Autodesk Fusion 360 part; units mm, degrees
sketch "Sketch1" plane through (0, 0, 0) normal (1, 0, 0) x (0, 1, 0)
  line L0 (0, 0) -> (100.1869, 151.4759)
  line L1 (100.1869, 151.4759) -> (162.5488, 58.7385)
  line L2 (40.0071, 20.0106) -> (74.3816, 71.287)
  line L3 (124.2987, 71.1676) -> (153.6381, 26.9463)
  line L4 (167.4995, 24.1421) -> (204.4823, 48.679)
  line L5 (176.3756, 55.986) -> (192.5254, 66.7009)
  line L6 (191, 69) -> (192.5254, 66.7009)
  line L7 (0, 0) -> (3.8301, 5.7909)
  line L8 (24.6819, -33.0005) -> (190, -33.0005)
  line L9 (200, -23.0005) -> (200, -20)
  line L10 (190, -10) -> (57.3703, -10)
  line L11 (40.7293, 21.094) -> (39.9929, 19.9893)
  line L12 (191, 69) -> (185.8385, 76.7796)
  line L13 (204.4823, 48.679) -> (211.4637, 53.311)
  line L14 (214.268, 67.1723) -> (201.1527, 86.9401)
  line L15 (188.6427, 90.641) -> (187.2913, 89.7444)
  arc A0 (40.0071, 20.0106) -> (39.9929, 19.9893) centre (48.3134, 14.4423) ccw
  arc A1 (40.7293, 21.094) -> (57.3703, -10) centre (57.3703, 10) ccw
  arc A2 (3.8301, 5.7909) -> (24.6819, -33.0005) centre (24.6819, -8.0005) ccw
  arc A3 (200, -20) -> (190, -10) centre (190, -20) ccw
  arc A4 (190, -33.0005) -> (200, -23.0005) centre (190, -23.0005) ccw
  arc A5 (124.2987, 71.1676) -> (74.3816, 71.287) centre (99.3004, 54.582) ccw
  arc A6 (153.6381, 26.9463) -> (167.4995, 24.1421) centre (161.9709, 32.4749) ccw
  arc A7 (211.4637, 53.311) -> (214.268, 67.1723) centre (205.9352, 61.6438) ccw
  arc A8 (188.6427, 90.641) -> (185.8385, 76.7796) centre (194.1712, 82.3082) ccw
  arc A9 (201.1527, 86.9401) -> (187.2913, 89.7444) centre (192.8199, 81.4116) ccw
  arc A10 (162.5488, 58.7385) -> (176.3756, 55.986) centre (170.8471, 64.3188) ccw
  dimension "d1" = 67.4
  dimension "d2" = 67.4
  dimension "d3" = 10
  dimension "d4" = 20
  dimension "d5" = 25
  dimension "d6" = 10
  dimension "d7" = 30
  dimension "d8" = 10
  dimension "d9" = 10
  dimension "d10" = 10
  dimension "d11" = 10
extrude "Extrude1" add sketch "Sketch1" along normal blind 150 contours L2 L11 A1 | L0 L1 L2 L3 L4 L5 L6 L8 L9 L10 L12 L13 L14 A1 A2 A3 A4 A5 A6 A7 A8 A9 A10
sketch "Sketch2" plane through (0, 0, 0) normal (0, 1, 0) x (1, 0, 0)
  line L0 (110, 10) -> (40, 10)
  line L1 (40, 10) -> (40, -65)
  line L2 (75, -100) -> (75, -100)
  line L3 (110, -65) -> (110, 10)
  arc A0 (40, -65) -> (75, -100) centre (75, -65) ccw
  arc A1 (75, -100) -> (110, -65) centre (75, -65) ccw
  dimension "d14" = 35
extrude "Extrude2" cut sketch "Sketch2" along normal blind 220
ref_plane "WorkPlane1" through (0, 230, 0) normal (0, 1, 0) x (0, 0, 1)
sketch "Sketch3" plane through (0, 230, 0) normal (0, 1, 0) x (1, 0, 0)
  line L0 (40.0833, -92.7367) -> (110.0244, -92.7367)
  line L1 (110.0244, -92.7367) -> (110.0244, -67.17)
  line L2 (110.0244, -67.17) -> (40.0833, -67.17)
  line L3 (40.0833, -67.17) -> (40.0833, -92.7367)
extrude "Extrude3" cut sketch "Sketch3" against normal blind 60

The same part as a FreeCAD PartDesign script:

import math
import FreeCAD as App
import Part
import Sketcher
from FreeCAD import Vector
Q = App.Units.Quantity


def add_polygon(sketch, points):
    """Adds a closed chain of lines whose ends are joined by coincident constraints."""
    first, n = sketch.GeometryCount, len(points)
    for a, b in zip(points, points[1:] + points[:1]):
        sketch.addGeometry(Part.LineSegment(App.Vector(*a, 0), App.Vector(*b, 0)), False)
    for i in range(n):
        sketch.addConstraint(Sketcher.Constraint("Coincident", first + i, 2, first + (i + 1) % n, 1))

doc = App.newDocument("Part")
body = doc.addObject("PartDesign::Body", "Body")

sketch1 = body.newObject("Sketcher::SketchObject", "Sketch")
sketch1.AttachmentSupport = (doc.getObject("YZ_Plane"), [""])
sketch1.MapMode = "FlatFace"
sketch1.addGeometry(Part.LineSegment(Vector(100.1869, 151.4759, 0), Vector(3.830121, 5.790886, 0)), False)
sketch1.addGeometry(Part.ArcOfCircle(Part.Circle(Vector(24.6819, -8.0005, 0), Vector(0, 0, 1), 25.000006), math.radians(146.519313), math.radians(270)), False)
sketch1.addGeometry(Part.LineSegment(Vector(24.6819, -33.0005, 0), Vector(190, -33.0005, 0)), False)
sketch1.addGeometry(Part.ArcOfCircle(Part.Circle(Vector(190, -23.0005, 0), Vector(0, 0, 1), 10), math.radians(-90), math.radians(0)), False)
sketch1.addGeometry(Part.LineSegment(Vector(200, -23.0005, 0), Vector(200, -20, 0)), False)
sketch1.addGeometry(Part.ArcOfCircle(Part.Circle(Vector(190, -20, 0), Vector(0, 0, 1), 10), math.radians(0), math.radians(90)), False)
sketch1.addGeometry(Part.LineSegment(Vector(190, -10, 0), Vector(57.3703, -10, 0)), False)
sketch1.addGeometry(Part.ArcOfCircle(Part.Circle(Vector(57.3703, 10, 0), Vector(0, 0, 1), 19.999993), math.radians(147.228748), math.radians(270)), False)
sketch1.addGeometry(Part.LineSegment(Vector(40.55354, 20.825724, 0), Vector(74.3816, 71.287, 0)), False)
sketch1.addGeometry(Part.ArcOfCircle(Part.Circle(Vector(99.3004, 54.582, 0), Vector(0, 0, 1), 29.999952), math.radians(33.563045), math.radians(146.162994)), False)
sketch1.addGeometry(Part.LineSegment(Vector(124.2987, 71.1676, 0), Vector(153.6381, 26.9463, 0)), False)
sketch1.addGeometry(Part.ArcOfCircle(Part.Circle(Vector(161.9709, 32.4749, 0), Vector(0, 0, 1), 10.000049), math.radians(-146.436742), math.radians(-56.436742)), False)
sketch1.addGeometry(Part.LineSegment(Vector(167.4995, 24.1421, 0), Vector(204.4823, 48.679, 0)), False)
sketch1.addGeometry(Part.LineSegment(Vector(204.4823, 48.679, 0), Vector(211.4637, 53.311, 0)), False)
sketch1.addGeometry(Part.ArcOfCircle(Part.Circle(Vector(205.9352, 61.6438, 0), Vector(0, 0, 1), 9.999993), math.radians(-56.437219), math.radians(33.562781)), False)
sketch1.addGeometry(Part.LineSegment(Vector(214.268, 67.1723, 0), Vector(201.1527, 86.9401, 0)), False)
sketch1.addGeometry(Part.ArcOfCircle(Part.Circle(Vector(192.8199, 81.4116, 0), Vector(0, 0, 1), 9.999993), math.radians(33.562781), math.radians(118.91209)), False)
sketch1.addGeometry(Part.ArcOfCircle(Part.Circle(Vector(194.1712, 82.3082, 0), Vector(0, 0, 1), 9.999993), math.radians(128.213929), math.radians(213.563575)), False)
sketch1.addGeometry(Part.LineSegment(Vector(185.8385, 76.7796, 0), Vector(191, 69, 0)), False)
sketch1.addGeometry(Part.LineSegment(Vector(191, 69, 0), Vector(192.5254, 66.7009, 0)), False)
sketch1.addGeometry(Part.LineSegment(Vector(192.5254, 66.7009, 0), Vector(176.3756, 55.986, 0)), False)
sketch1.addGeometry(Part.ArcOfCircle(Part.Circle(Vector(170.8471, 64.3188, 0), Vector(0, 0, 1), 10.000077), math.radians(-146.080627), math.radians(-56.437219)), False)
sketch1.addGeometry(Part.LineSegment(Vector(162.5488, 58.7385, 0), Vector(100.1869, 151.4759, 0)), False)
sketch1.addConstraint(Sketcher.Constraint("Tangent", 0, 2, 1, 1))
sketch1.addConstraint(Sketcher.Constraint("Tangent", 1, 2, 2, 1))
sketch1.addConstraint(Sketcher.Constraint("Tangent", 2, 2, 3, 1))
sketch1.addConstraint(Sketcher.Constraint("Tangent", 3, 2, 4, 1))
sketch1.addConstraint(Sketcher.Constraint("Tangent", 4, 2, 5, 1))
sketch1.addConstraint(Sketcher.Constraint("Tangent", 5, 2, 6, 1))
sketch1.addConstraint(Sketcher.Constraint("Tangent", 6, 2, 7, 2))
sketch1.addConstraint(Sketcher.Constraint("Coincident", 7, 1, 8, 1))
sketch1.addConstraint(Sketcher.Constraint("Tangent", 8, 2, 9, 2))
sketch1.addConstraint(Sketcher.Constraint("Tangent", 9, 1, 10, 1))
sketch1.addConstraint(Sketcher.Constraint("Tangent", 10, 2, 11, 1))
sketch1.addConstraint(Sketcher.Constraint("Tangent", 11, 2, 12, 1))
sketch1.addConstraint(Sketcher.Constraint("Coincident", 12, 2, 13, 1))
sketch1.addConstraint(Sketcher.Constraint("Tangent", 13, 2, 14, 1))
sketch1.addConstraint(Sketcher.Constraint("Tangent", 14, 2, 15, 1))
sketch1.addConstraint(Sketcher.Constraint("Tangent", 15, 2, 16, 1))
sketch1.addConstraint(Sketcher.Constraint("Coincident", 16, 2, 17, 1))
sketch1.addConstraint(Sketcher.Constraint("Tangent", 17, 2, 18, 1))
sketch1.addConstraint(Sketcher.Constraint("Coincident", 18, 2, 19, 1))
sketch1.addConstraint(Sketcher.Constraint("Coincident", 19, 2, 20, 1))
sketch1.addConstraint(Sketcher.Constraint("Tangent", 20, 2, 21, 2))
sketch1.addConstraint(Sketcher.Constraint("Tangent", 21, 1, 22, 1))
sketch1.addConstraint(Sketcher.Constraint("Coincident", 22, 2, 0, 1))
sketch1.addConstraint(Sketcher.Constraint("Horizontal", 2))
sketch1.addConstraint(Sketcher.Constraint("Vertical", 4))
sketch1.addConstraint(Sketcher.Constraint("Horizontal", 6))
sketch1.addConstraint(Sketcher.Constraint("Equal", 3, 5))
sketch1.addConstraint(Sketcher.Constraint("Equal", 5, 11))
sketch1.addConstraint(Sketcher.Constraint("Equal", 11, 14))
sketch1.addConstraint(Sketcher.Constraint("Equal", 14, 16))
sketch1.addConstraint(Sketcher.Constraint("Equal", 16, 17))
sketch1.addConstraint(Sketcher.Constraint("Equal", 17, 21))
sketch1.addConstraint(Sketcher.Constraint("Perpendicular", 10, 12))
sketch1.addConstraint(Sketcher.Constraint("Parallel", 12, 13))
sketch1.addConstraint(Sketcher.Constraint("Perpendicular", 13, 15))
sketch1.addConstraint(Sketcher.Constraint("Parallel", 15, 18))
sketch1.addConstraint(Sketcher.Constraint("Parallel", 18, 19))
sketch1.addConstraint(Sketcher.Constraint("Perpendicular", 19, 20))
sketch1.addConstraint(Sketcher.Constraint("Radius", 1, 25.0))
sketch1.addConstraint(Sketcher.Constraint("Radius", 3, 10.0))
sketch1.addConstraint(Sketcher.Constraint("Radius", 7, 20.0))
sketch1.addConstraint(Sketcher.Constraint("Radius", 9, 30.0))
sketch1.addConstraint(Sketcher.Constraint("DistanceY", 5, 3, -1, 1, 20.0))
sketch1.addConstraint(Sketcher.Constraint("DistanceX", -1, 1, 3, 3, 190.0))
sketch1.addConstraint(Sketcher.Constraint("DistanceX", -1, 1, 18, 2, 191.0))
sketch1.addConstraint(Sketcher.Constraint("DistanceY", -1, 1, 18, 2, 69.0))
sketch1.addConstraint(Sketcher.Constraint("Angle", 0, Q("-123.4808 deg")))
sketch1.addConstraint(Sketcher.Constraint("Angle", 22, Q("123.9191 deg")))
sketch1.addConstraint(Sketcher.Constraint("DistanceX", 2, 1, 2, 2, 165.318))
sketch1.addConstraint(Sketcher.Constraint("DistanceX", -1, 1, 16, 3, 192.82))
sketch1.addConstraint(Sketcher.Constraint("DistanceY", -1, 1, 15, 2, 86.94))
sketch1.addConstraint(Sketcher.Constraint("DistanceX", 7, 3, 9, 3, 41.93))
sketch1.addConstraint(Sketcher.Constraint("DistanceX", 16, 2, 14, 3, 17.95))
sketch1.addConstraint(Sketcher.Constraint("Distance", 8, 60.751))
sketch1.addConstraint(Sketcher.Constraint("Distance", 10, 53.069))
sketch1.addConstraint(Sketcher.Constraint("Distance", 15, 23.723))
sketch1.addConstraint(Sketcher.Constraint("Distance", 19, 2.759))
sketch1.addConstraint(Sketcher.Constraint("Distance", 20, 19.381))
sketch1.addConstraint(Sketcher.Constraint("DistanceX", 6, 2, 6, 1, 132.6297))
sketch1.addConstraint(Sketcher.Constraint("DistanceY", 4, 1, 4, 2, 3.0005))
sketch1.addConstraint(Sketcher.Constraint("DistanceY", -1, 1, 9, 3, 54.582))
sketch1.addConstraint(Sketcher.Constraint("DistanceY", -1, 1, 12, 2, 48.679))
pad1 = body.newObject("PartDesign::Pad", "Pad")
pad1.Profile = sketch1
pad1.Length = 150

sketch2 = body.newObject("Sketcher::SketchObject", "Sketch001")
sketch2.AttachmentSupport = (doc.getObject("XZ_Plane"), [""])
sketch2.MapMode = "FlatFace"
sketch2.addGeometry(Part.LineSegment(Vector(110, 65, 0), Vector(110, -10, 0)), False)
sketch2.addGeometry(Part.LineSegment(Vector(110, -10, 0), Vector(40, -10, 0)), False)
sketch2.addGeometry(Part.LineSegment(Vector(40, -10, 0), Vector(40, 65, 0)), False)
sketch2.addGeometry(Part.ArcOfCircle(Part.Circle(Vector(75, 65, 0), Vector(0, 0, 1), 35), math.radians(0), math.radians(180)), False)
sketch2.addConstraint(Sketcher.Constraint("Coincident", 0, 2, 1, 1))
sketch2.addConstraint(Sketcher.Constraint("Coincident", 1, 2, 2, 1))
sketch2.addConstraint(Sketcher.Constraint("Tangent", 2, 2, 3, 2))
sketch2.addConstraint(Sketcher.Constraint("Tangent", 3, 1, 0, 1))
sketch2.addConstraint(Sketcher.Constraint("Vertical", 0))
sketch2.addConstraint(Sketcher.Constraint("Horizontal", 1))
sketch2.addConstraint(Sketcher.Constraint("Vertical", 2))
sketch2.addConstraint(Sketcher.Constraint("Radius", 3, 35.0))
sketch2.addConstraint(Sketcher.Constraint("DistanceY", 0, 2, 0, 1, 75.0))
sketch2.addConstraint(Sketcher.Constraint("DistanceX", -1, 1, 3, 3, 75.0))
sketch2.addConstraint(Sketcher.Constraint("DistanceY", -1, 1, 3, 3, 65.0))
pocket1 = body.newObject("PartDesign::Pocket", "Pocket")
pocket1.Profile = sketch2
pocket1.Length = 220

sketch3 = body.newObject("Sketcher::SketchObject", "Sketch002")
sketch3.AttachmentSupport = (doc.getObject("XZ_Plane"), [""])
sketch3.MapMode = "FlatFace"
sketch3.AttachmentOffset = App.Placement(Vector(0, 0, -230), App.Rotation())
add_polygon(sketch3, [(40.0833, 67.17), (40.0833, 92.7367), (110.0244, 92.7367), (110.0244, 67.17)])
sketch3.addConstraint(Sketcher.Constraint("Vertical", 0))
sketch3.addConstraint(Sketcher.Constraint("Horizontal", 1))
sketch3.addConstraint(Sketcher.Constraint("Vertical", 2))
sketch3.addConstraint(Sketcher.Constraint("Horizontal", 3))
sketch3.addConstraint(Sketcher.Constraint("DistanceX", 1, 1, 1, 2, 69.941))
sketch3.addConstraint(Sketcher.Constraint("DistanceY", -1, 1, 2, 2, 67.17))
sketch3.addConstraint(Sketcher.Constraint("DistanceY", 0, 1, 0, 2, 25.5667))
sketch3.addConstraint(Sketcher.Constraint("DistanceX", -1, 1, 0, 2, 40.0833))
pocket2 = body.newObject("PartDesign::Pocket", "Pocket001")
pocket2.Profile = sketch3
pocket2.Length = 60
pocket2.Reversed = True

doc.recompute()
